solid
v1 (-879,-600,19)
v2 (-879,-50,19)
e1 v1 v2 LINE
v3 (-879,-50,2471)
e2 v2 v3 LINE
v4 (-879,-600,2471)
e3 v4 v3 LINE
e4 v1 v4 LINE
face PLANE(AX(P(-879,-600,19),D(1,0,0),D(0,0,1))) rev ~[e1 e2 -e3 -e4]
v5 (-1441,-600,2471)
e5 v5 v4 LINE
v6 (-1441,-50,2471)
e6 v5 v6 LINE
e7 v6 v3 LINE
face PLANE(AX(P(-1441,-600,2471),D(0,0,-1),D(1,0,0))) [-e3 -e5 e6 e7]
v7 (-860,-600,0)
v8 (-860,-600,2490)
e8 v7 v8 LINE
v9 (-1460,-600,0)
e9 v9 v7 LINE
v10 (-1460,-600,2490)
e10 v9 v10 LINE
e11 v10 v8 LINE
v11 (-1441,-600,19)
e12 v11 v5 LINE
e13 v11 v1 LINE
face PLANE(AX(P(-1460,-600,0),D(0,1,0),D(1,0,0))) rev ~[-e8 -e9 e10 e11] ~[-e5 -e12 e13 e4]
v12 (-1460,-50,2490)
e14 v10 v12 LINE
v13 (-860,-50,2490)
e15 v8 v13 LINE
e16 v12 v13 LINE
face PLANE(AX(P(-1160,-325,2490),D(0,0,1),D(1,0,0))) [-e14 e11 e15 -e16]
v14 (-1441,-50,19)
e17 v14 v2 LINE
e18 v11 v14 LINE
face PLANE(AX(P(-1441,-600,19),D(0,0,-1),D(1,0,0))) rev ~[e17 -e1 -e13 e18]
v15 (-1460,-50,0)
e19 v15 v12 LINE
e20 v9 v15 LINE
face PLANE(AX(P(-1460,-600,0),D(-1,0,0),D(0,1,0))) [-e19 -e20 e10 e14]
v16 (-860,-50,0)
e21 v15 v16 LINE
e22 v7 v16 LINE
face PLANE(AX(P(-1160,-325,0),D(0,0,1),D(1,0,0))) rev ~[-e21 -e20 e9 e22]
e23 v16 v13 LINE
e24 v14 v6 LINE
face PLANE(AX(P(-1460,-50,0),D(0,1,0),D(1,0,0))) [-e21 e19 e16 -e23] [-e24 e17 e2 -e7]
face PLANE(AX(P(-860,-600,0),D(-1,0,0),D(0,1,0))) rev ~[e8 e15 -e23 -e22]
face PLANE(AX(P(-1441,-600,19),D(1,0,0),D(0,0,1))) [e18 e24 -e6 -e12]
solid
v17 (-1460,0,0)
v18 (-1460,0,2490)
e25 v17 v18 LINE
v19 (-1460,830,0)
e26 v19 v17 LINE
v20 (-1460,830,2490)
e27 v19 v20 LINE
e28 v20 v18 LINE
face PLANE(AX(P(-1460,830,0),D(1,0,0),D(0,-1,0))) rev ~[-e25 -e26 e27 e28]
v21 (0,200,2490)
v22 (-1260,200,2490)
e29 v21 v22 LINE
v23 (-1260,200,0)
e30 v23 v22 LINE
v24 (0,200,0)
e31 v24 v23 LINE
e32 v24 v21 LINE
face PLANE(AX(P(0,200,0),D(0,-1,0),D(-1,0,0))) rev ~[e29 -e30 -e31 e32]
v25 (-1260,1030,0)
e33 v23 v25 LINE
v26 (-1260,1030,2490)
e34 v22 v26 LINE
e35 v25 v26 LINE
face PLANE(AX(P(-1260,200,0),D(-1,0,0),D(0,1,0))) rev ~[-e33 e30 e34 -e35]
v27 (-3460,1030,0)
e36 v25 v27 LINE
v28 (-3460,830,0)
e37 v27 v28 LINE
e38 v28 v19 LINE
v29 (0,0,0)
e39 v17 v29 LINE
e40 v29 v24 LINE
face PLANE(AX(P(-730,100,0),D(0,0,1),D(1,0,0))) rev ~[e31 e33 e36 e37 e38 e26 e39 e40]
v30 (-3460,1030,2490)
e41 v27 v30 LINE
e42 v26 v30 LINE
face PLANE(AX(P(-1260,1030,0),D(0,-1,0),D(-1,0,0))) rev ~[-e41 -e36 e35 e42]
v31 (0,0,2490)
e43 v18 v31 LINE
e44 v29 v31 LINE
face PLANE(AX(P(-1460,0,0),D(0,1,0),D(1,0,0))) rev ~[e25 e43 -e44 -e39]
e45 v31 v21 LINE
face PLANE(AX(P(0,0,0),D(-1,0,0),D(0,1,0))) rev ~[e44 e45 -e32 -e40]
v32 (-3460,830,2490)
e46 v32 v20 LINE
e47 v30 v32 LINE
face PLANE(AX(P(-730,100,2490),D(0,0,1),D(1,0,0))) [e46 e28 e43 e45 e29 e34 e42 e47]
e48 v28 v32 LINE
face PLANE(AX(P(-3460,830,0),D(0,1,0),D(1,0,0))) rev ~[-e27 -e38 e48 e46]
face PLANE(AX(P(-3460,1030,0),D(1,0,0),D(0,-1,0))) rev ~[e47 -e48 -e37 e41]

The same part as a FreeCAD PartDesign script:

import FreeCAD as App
import Part
import Sketcher

V = App.Vector
Q = App.Units.Quantity

doc = App.newDocument("Part")
body = doc.addObject("PartDesign::Body", "Body")

sketch1 = doc.addObject("Sketcher::SketchObject", "Sketch")
body.addObject(sketch1)
sketch1.AttachmentSupport = (doc.XY_Plane, [""])
sketch1.MapMode = "FlatFace"
sketch1.addGeometry([
    Part.LineSegment(V(-1460, 0, 0), V(0, 0, 0)),
    Part.LineSegment(V(0, 0, 0), V(0, 200, 0)),
    Part.LineSegment(V(0, 200, 0), V(-1260, 200, 0)),
    Part.LineSegment(V(-1260, 200, 0), V(-1260, 1030, 0)),
    Part.LineSegment(V(-1260, 1030, 0), V(-3460, 1030, 0)),
    Part.LineSegment(V(-3460, 1030, 0), V(-3460, 830, 0)),
    Part.LineSegment(V(-3460, 830, 0), V(-1460, 830, 0)),
    Part.LineSegment(V(-1460, 830, 0), V(-1460, 0, 0)),
], False)
sketch1.addConstraint([
    Sketcher.Constraint("Coincident", 0, 2, 1, 1),
    Sketcher.Constraint("Coincident", 1, 2, 2, 1),
    Sketcher.Constraint("Coincident", 2, 2, 3, 1),
    Sketcher.Constraint("Coincident", 3, 2, 4, 1),
    Sketcher.Constraint("Coincident", 4, 2, 5, 1),
    Sketcher.Constraint("Coincident", 5, 2, 6, 1),
    Sketcher.Constraint("Coincident", 6, 2, 7, 1),
    Sketcher.Constraint("Coincident", 7, 2, 0, 1),
    Sketcher.Constraint("Horizontal", 0),
    Sketcher.Constraint("Vertical", 1),
    Sketcher.Constraint("Horizontal", 2),
    Sketcher.Constraint("Vertical", 3),
    Sketcher.Constraint("Horizontal", 4),
    Sketcher.Constraint("Vertical", 5),
    Sketcher.Constraint("Horizontal", 6),
    Sketcher.Constraint("Vertical", 7),
    Sketcher.Constraint("Coincident", 0, 2, -1, 1),
    Sketcher.Constraint("Equal", 1, 5),
    Sketcher.Constraint("DistanceX", 0, 1, 0, 2, Q("1460 mm")),
    Sketcher.Constraint("DistanceX", 2, 2, 2, 1, Q("1260 mm")),
    Sketcher.Constraint("DistanceX", 4, 2, 4, 1, Q("2200 mm")),
    Sketcher.Constraint("DistanceY", 1, 1, 1, 2, Q("200 mm")),
    Sketcher.Constraint("DistanceY", 3, 1, 3, 2, Q("830 mm")),
])
pad1 = doc.addObject("PartDesign::Pad", "Pad")
body.addObject(pad1)
pad1.Profile = sketch1
pad1.Length = 2490
body2 = doc.addObject("PartDesign::Body", "Body001")

sketch2 = doc.addObject("Sketcher::SketchObject", "Sketch001")
body2.addObject(sketch2)
sketch2.AttachmentSupport = (doc.getObject("XY_Plane001"), [""])
sketch2.MapMode = "FlatFace"
sketch2.addGeometry([
    Part.LineSegment(V(-1460, -50, 0), V(-1460, -600, 0)),
    Part.LineSegment(V(-1460, -600, 0), V(-860, -600, 0)),
    Part.LineSegment(V(-860, -600, 0), V(-860, -50, 0)),
    Part.LineSegment(V(-860, -50, 0), V(-1460, -50, 0)),
], False)
sketch2.addConstraint([
    Sketcher.Constraint("Coincident", 0, 2, 1, 1),
    Sketcher.Constraint("Coincident", 1, 2, 2, 1),
    Sketcher.Constraint("Coincident", 2, 2, 3, 1),
    Sketcher.Constraint("Coincident", 3, 2, 0, 1),
    Sketcher.Constraint("Vertical", 0),
    Sketcher.Constraint("Horizontal", 1),
    Sketcher.Constraint("Vertical", 2),
    Sketcher.Constraint("Horizontal", 3),
    Sketcher.Constraint("DistanceX", 1, 1, 1, 2, Q("600 mm")),
    Sketcher.Constraint("DistanceY", 0, 2, 0, 1, Q("550 mm")),
    Sketcher.Constraint("DistanceX", 0, 2, -1, 1, Q("1460 mm")),
    Sketcher.Constraint("DistanceY", 0, 2, -1, 1, Q("600 mm")),
])
pad2 = doc.addObject("PartDesign::Pad", "Pad001")
body2.addObject(pad2)
pad2.Profile = sketch2
pad2.Length = 2490

sketch3 = doc.addObject("Sketcher::SketchObject", "Sketch002")
body2.addObject(sketch3)
sketch3.AttachmentSupport = (doc.getObject("XZ_Plane001"), [""])
sketch3.MapMode = "FlatFace"
sketch3.AttachmentOffset = App.Placement(V(0, 0, 600), App.Rotation())
sketch3.addGeometry([
    Part.LineSegment(V(-1441, 2471, 0), V(-1441, 19, 0)),
    Part.LineSegment(V(-1441, 19, 0), V(-879, 19, 0)),
    Part.LineSegment(V(-879, 19, 0), V(-879, 2471, 0)),
    Part.LineSegment(V(-879, 2471, 0), V(-1441, 2471, 0)),
], False)
sketch3.addConstraint([
    Sketcher.Constraint("Coincident", 0, 2, 1, 1),
    Sketcher.Constraint("Coincident", 1, 2, 2, 1),
    Sketcher.Constraint("Coincident", 2, 2, 3, 1),
    Sketcher.Constraint("Coincident", 3, 2, 0, 1),
    Sketcher.Constraint("Vertical", 0),
    Sketcher.Constraint("Horizontal", 1),
    Sketcher.Constraint("Vertical", 2),
    Sketcher.Constraint("Horizontal", 3),
    Sketcher.Constraint("DistanceX", 1, 1, 1, 2, Q("562 mm")),
    Sketcher.Constraint("DistanceY", 0, 2, 0, 1, Q("2452 mm")),
    Sketcher.Constraint("DistanceX", 0, 2, -1, 1, Q("1441 mm")),
    Sketcher.Constraint("DistanceY", -1, 1, 0, 2, Q("19 mm")),
])
pocket1 = doc.addObject("PartDesign::Pocket", "Pocket")
body2.addObject(pocket1)
pocket1.Profile = sketch3
pocket1.Type = "ThroughAll"

doc.recompute()
